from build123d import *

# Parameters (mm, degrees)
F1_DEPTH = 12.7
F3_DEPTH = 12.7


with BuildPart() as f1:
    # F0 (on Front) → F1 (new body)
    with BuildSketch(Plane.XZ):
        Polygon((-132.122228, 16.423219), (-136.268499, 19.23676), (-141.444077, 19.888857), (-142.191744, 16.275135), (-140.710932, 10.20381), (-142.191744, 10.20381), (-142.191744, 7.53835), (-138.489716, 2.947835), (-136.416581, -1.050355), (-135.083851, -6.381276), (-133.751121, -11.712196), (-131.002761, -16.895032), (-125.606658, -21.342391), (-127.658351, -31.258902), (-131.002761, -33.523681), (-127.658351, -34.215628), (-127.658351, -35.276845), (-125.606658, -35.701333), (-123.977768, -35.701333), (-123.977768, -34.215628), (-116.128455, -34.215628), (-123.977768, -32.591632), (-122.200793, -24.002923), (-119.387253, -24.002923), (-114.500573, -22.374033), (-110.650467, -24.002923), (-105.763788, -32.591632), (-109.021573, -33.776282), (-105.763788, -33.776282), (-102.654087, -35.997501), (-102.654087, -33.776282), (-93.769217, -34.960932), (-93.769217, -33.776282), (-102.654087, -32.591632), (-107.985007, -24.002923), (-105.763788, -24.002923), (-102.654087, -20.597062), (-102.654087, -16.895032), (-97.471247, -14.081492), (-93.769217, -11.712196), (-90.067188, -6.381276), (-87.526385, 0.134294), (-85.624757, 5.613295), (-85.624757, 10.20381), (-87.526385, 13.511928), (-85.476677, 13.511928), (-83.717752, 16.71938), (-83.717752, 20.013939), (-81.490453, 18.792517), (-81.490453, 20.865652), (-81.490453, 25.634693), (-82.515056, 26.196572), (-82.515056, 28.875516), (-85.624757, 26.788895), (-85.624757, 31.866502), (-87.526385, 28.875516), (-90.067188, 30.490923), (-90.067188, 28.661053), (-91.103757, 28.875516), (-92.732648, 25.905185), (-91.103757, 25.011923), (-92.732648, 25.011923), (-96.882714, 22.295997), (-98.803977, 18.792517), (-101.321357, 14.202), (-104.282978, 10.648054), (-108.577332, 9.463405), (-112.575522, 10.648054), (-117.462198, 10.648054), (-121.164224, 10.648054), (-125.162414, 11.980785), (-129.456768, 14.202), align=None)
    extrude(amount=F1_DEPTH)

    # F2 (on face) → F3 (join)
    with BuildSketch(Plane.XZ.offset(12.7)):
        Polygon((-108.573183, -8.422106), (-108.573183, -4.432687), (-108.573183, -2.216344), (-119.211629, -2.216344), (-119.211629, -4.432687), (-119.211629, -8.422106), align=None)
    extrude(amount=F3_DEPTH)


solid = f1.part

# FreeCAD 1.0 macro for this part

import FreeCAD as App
import Part
import Sketcher
from FreeCAD import Vector
Q = App.Units.Quantity


def add_polygon(sketch, points):
    """Adds a closed chain of lines whose ends are joined by coincident constraints."""
    first, n = sketch.GeometryCount, len(points)
    for a, b in zip(points, points[1:] + points[:1]):
        sketch.addGeometry(Part.LineSegment(App.Vector(*a, 0), App.Vector(*b, 0)), False)
    for i in range(n):
        sketch.addConstraint(Sketcher.Constraint("Coincident", first + i, 2, first + (i + 1) % n, 1))

doc = App.newDocument("Part")
body = doc.addObject("PartDesign::Body", "Body")

sketch1 = body.newObject("Sketcher::SketchObject", "Sketch")
sketch1.AttachmentSupport = (doc.getObject("XZ_Plane"), [""])
sketch1.MapMode = "FlatFace"
add_polygon(sketch1, [(-132.122228, 16.423219), (-136.268499, 19.23676), (-141.444077, 19.888857), (-142.191744, 16.275135), (-140.710932, 10.20381), (-142.191744, 10.20381), (-142.191744, 7.53835), (-138.489716, 2.947835), (-136.416581, -1.050355), (-135.083851, -6.381276), (-133.751121, -11.712196), (-131.002761, -16.895032), (-125.606658, -21.342391), (-127.658351, -31.258902), (-131.002761, -33.523681), (-127.658351, -34.215628), (-127.658351, -35.276845), (-125.606658, -35.701333), (-123.977768, -35.701333), (-123.977768, -34.215628), (-116.128455, -34.215628), (-123.977768, -32.591632), (-122.200793, -24.002923), (-119.387253, -24.002923), (-114.500573, -22.374033), (-110.650467, -24.002923), (-105.763788, -32.591632), (-109.021573, -33.776282), (-105.763788, -33.776282), (-102.654087, -35.997501), (-102.654087, -33.776282), (-93.769217, -34.960932), (-93.769217, -33.776282), (-102.654087, -32.591632), (-107.985007, -24.002923), (-105.763788, -24.002923), (-102.654087, -20.597062), (-102.654087, -16.895032), (-97.471247, -14.081492), (-93.769217, -11.712196), (-90.067188, -6.381276), (-87.526385, 0.134294), (-85.624757, 5.613295), (-85.624757, 10.20381), (-87.526385, 13.511928), (-85.476677, 13.511928), (-83.717752, 16.71938), (-83.717752, 20.013939), (-81.490453, 18.792517), (-81.490453, 25.634693), (-82.515056, 26.196572), (-82.515056, 28.875516), (-85.624757, 26.788895), (-85.624757, 31.866502), (-87.526385, 28.875516), (-90.067188, 30.490923), (-90.067188, 28.661053), (-91.103757, 28.875516), (-92.732648, 25.905185), (-91.103757, 25.011923), (-92.732648, 25.011923), (-96.882714, 22.295997), (-98.803977, 18.792517), (-101.321357, 14.202), (-104.282978, 10.648054), (-108.577332, 9.463405), (-112.575522, 10.648054), (-121.164224, 10.648054), (-125.162414, 11.980785), (-129.456768, 14.202)])
sketch1.addConstraint(Sketcher.Constraint("Horizontal", 4))
sketch1.addConstraint(Sketcher.Constraint("Vertical", 5))
sketch1.addConstraint(Sketcher.Constraint("Vertical", 15))
sketch1.addConstraint(Sketcher.Constraint("Horizontal", 17))
sketch1.addConstraint(Sketcher.Constraint("Vertical", 18))
sketch1.addConstraint(Sketcher.Constraint("Horizontal", 19))
sketch1.addConstraint(Sketcher.Constraint("Horizontal", 22))
sketch1.addConstraint(Sketcher.Constraint("Horizontal", 27))
sketch1.addConstraint(Sketcher.Constraint("Vertical", 29))
sketch1.addConstraint(Sketcher.Constraint("Vertical", 31))
sketch1.addConstraint(Sketcher.Constraint("Horizontal", 34))
sketch1.addConstraint(Sketcher.Constraint("Vertical", 36))
sketch1.addConstraint(Sketcher.Constraint("Vertical", 42))
sketch1.addConstraint(Sketcher.Constraint("Horizontal", 44))
sketch1.addConstraint(Sketcher.Constraint("Vertical", 46))
sketch1.addConstraint(Sketcher.Constraint("Vertical", 48))
sketch1.addConstraint(Sketcher.Constraint("Vertical", 50))
sketch1.addConstraint(Sketcher.Constraint("Vertical", 52))
sketch1.addConstraint(Sketcher.Constraint("Vertical", 55))
sketch1.addConstraint(Sketcher.Constraint("Horizontal", 59))
sketch1.addConstraint(Sketcher.Constraint("Horizontal", 66))
sketch1.addConstraint(Sketcher.Constraint("Parallel", 8, 9))
sketch1.addConstraint(Sketcher.Constraint("Parallel", 2, 12))
sketch1.addConstraint(Sketcher.Constraint("Perpendicular", 12, 14))
sketch1.addConstraint(Sketcher.Constraint("Parallel", 14, 16))
sketch1.addConstraint(Sketcher.Constraint("Parallel", 16, 20))
sketch1.addConstraint(Sketcher.Constraint("Perpendicular", 20, 21))
sketch1.addConstraint(Sketcher.Constraint("Parallel", 30, 32))
sketch1.addConstraint(Sketcher.Constraint("Perpendicular", 45, 47))
sketch1.addConstraint(Sketcher.Constraint("Parallel", 47, 49))
sketch1.addConstraint(Sketcher.Constraint("Perpendicular", 53, 54))
sketch1.addConstraint(Sketcher.Constraint("Perpendicular", 21, 56))
sketch1.addConstraint(Sketcher.Constraint("Perpendicular", 49, 57))
sketch1.addConstraint(Sketcher.Constraint("Perpendicular", 57, 58))
sketch1.addConstraint(Sketcher.Constraint("Perpendicular", 58, 61))
sketch1.addConstraint(Sketcher.Constraint("Parallel", 61, 62))
sketch1.addConstraint(Sketcher.Constraint("Perpendicular", 63, 69))
sketch1.addConstraint(Sketcher.Constraint("Horizontal", 14, 2, 18, 2))
sketch1.addConstraint(Sketcher.Constraint("Horizontal", 22, 2, 24, 2))
sketch1.addConstraint(Sketcher.Constraint("Horizontal", 20, 2, 25, 2))
sketch1.addConstraint(Sketcher.Constraint("Horizontal", 27, 2, 29, 2))
sketch1.addConstraint(Sketcher.Constraint("Horizontal", 29, 2, 31, 2))
sketch1.addConstraint(Sketcher.Constraint("Horizontal", 25, 2, 32, 2))
sketch1.addConstraint(Sketcher.Constraint("Horizontal", 24, 2, 33, 2))
sketch1.addConstraint(Sketcher.Constraint("Horizontal", 10, 2, 36, 2))
sketch1.addConstraint(Sketcher.Constraint("Horizontal", 9, 2, 38, 2))
sketch1.addConstraint(Sketcher.Constraint("Horizontal", 8, 2, 39, 2))
sketch1.addConstraint(Sketcher.Constraint("Horizontal", 4, 2, 42, 2))
sketch1.addConstraint(Sketcher.Constraint("Horizontal", 50, 2, 53, 2))
sketch1.addConstraint(Sketcher.Constraint("Horizontal", 53, 2, 56, 2))
sketch1.addConstraint(Sketcher.Constraint("Horizontal", 47, 2, 61, 2))
sketch1.addConstraint(Sketcher.Constraint("Horizontal", 63, 2, 65, 2))
sketch1.addConstraint(Sketcher.Constraint("Horizontal", 62, 2, 68, 2))
sketch1.addConstraint(Sketcher.Constraint("Vertical", 2, 2, 4, 2))
sketch1.addConstraint(Sketcher.Constraint("Vertical", 10, 2, 13, 2))
sketch1.addConstraint(Sketcher.Constraint("Vertical", 12, 2, 14, 2))
sketch1.addConstraint(Sketcher.Constraint("Vertical", 11, 2, 16, 2))
sketch1.addConstraint(Sketcher.Constraint("Vertical", 18, 2, 20, 2))
sketch1.addConstraint(Sketcher.Constraint("Vertical", 25, 2, 27, 2))
sketch1.addConstraint(Sketcher.Constraint("Vertical", 29, 2, 32, 2))
sketch1.addConstraint(Sketcher.Constraint("Vertical", 27, 2, 34, 2))
sketch1.addConstraint(Sketcher.Constraint("Vertical", 32, 2, 35, 2))
sketch1.addConstraint(Sketcher.Constraint("Vertical", 31, 2, 38, 2))
sketch1.addConstraint(Sketcher.Constraint("Vertical", 40, 2, 43, 2))
sketch1.addConstraint(Sketcher.Constraint("Vertical", 42, 2, 51, 2))
sketch1.addConstraint(Sketcher.Constraint("Vertical", 43, 2, 53, 2))
sketch1.addConstraint(Sketcher.Constraint("Vertical", 39, 2, 54, 2))
sketch1.addConstraint(Sketcher.Constraint("Vertical", 56, 2, 58, 2))
sketch1.addConstraint(Sketcher.Constraint("Vertical", 57, 2, 59, 2))
sketch1.addConstraint(Sketcher.Constraint("Equal", 17, 59))
sketch1.addConstraint(Sketcher.Constraint("Equal", 34, 29))
sketch1.addConstraint(Sketcher.Constraint("Equal", 8, 9))
sketch1.addConstraint(Sketcher.Constraint("Equal", 6, 37))
sketch1.addConstraint(Sketcher.Constraint("DistanceX", 66, 2, 66, 1, Q("8.588702 mm")))
sketch1.addConstraint(Sketcher.Constraint("DistanceX", 2, 2, -1, 1, Q("5.5981002 in")))
sketch1.addConstraint(Sketcher.Constraint("Distance", 30, Q("8.963499 mm")))
sketch1.addConstraint(Sketcher.Constraint("Distance", 61, Q("3.995701 mm")))
sketch1.addConstraint(Sketcher.Constraint("Distance", 63, Q("4.626201 mm")))
sketch1.addConstraint(Sketcher.Constraint("Distance", 65, Q("4.170002 mm")))
sketch1.addConstraint(Sketcher.Constraint("Distance", 68, Q("4.834798 mm")))
sketch1.addConstraint(Sketcher.Constraint("DistanceX", 4, 2, 4, 1, Q("1.480812 mm")))
sketch1.addConstraint(Sketcher.Constraint("DistanceX", 17, 1, 17, 2, Q("1.62889 mm")))
sketch1.addConstraint(Sketcher.Constraint("DistanceX", 22, 1, 22, 2, Q("2.81354 mm")))
sketch1.addConstraint(Sketcher.Constraint("DistanceX", 34, 1, 34, 2, Q("2.221219 mm")))
sketch1.addConstraint(Sketcher.Constraint("DistanceX", 44, 1, 44, 2, Q("2.049708 mm")))
sketch1.addConstraint(Sketcher.Constraint("DistanceY", 5, 2, 5, 1, Q("2.66546 mm")))
sketch1.addConstraint(Sketcher.Constraint("DistanceY", 31, 1, 31, 2, Q("1.18465 mm")))
sketch1.addConstraint(Sketcher.Constraint("DistanceY", 36, 1, 36, 2, Q("3.70203 mm")))
sketch1.addConstraint(Sketcher.Constraint("DistanceY", 46, 1, 46, 2, Q("3.294559 mm")))
sketch1.addConstraint(Sketcher.Constraint("DistanceY", 55, 2, 55, 1, Q("1.82987 mm")))
sketch1.addConstraint(Sketcher.Constraint("DistanceX", 0, 2, -1, 1, Q("136.268499 mm")))
sketch1.addConstraint(Sketcher.Constraint("DistanceY", 12, 2, -1, 1, Q("31.258902 mm")))
sketch1.addConstraint(Sketcher.Constraint("DistanceY", 28, 2, -1, 1, Q("35.997501 mm")))
sketch1.addConstraint(Sketcher.Constraint("DistanceY", -1, 1, 62, 2, Q("14.202 mm")))
sketch1.addConstraint(Sketcher.Constraint("Distance", 7, Q("4.503711 mm")))
sketch1.addConstraint(Sketcher.Constraint("Distance", 12, Q("10.126531 mm")))
sketch1.addConstraint(Sketcher.Constraint("Distance", 14, Q("3.415241 mm")))
sketch1.addConstraint(Sketcher.Constraint("Distance", 23, Q("5.151012 mm")))
sketch1.addConstraint(Sketcher.Constraint("Distance", 26, Q("3.466491 mm")))
sketch1.addConstraint(Sketcher.Constraint("Distance", 33, Q("10.108641 mm")))
sketch1.addConstraint(Sketcher.Constraint("Distance", 38, Q("4.395292 mm")))
sketch1.addConstraint(Sketcher.Constraint("Distance", 39, Q("6.490279 mm")))
sketch1.addConstraint(Sketcher.Constraint("Distance", 40, Q("6.993449 mm")))
sketch1.addConstraint(Sketcher.Constraint("Distance", 54, Q("3.01085 mm")))
sketch1.addConstraint(Sketcher.Constraint("Distance", 58, Q("1.857741 mm")))
sketch1.addConstraint(Sketcher.Constraint("Distance", 60, Q("4.959768 mm")))
sketch1.addConstraint(Sketcher.Constraint("Distance", 62, Q("5.235461 mm")))
sketch1.addConstraint(Sketcher.Constraint("Distance", 64, Q("4.454758 mm")))
sketch1.addConstraint(Sketcher.Constraint("DistanceX", 19, 1, 19, 2, Q("7.849313 mm")))
sketch1.addConstraint(Sketcher.Constraint("DistanceY", 15, 2, 15, 1, Q("1.061217 mm")))
sketch1.addConstraint(Sketcher.Constraint("DistanceY", 18, 1, 18, 2, Q("1.485705 mm")))
sketch1.addConstraint(Sketcher.Constraint("DistanceY", 42, 1, 42, 2, Q("4.590515 mm")))
sketch1.addConstraint(Sketcher.Constraint("DistanceY", 48, 1, 48, 2, Q("6.842176 mm")))
sketch1.addConstraint(Sketcher.Constraint("DistanceY", 50, 1, 50, 2, Q("2.678944 mm")))
sketch1.addConstraint(Sketcher.Constraint("DistanceY", 52, 1, 52, 2, Q("5.077607 mm")))
sketch1.addConstraint(Sketcher.Constraint("DistanceY", -1, 1, 0, 2, Q("19.23676 mm")))
sketch1.addConstraint(Sketcher.Constraint("DistanceY", -1, 1, 3, 2, Q("10.20381 mm")))
sketch1.addConstraint(Sketcher.Constraint("DistanceX", 7, 2, -1, 1, Q("136.416581 mm")))
sketch1.addConstraint(Sketcher.Constraint("DistanceX", 8, 2, -1, 1, Q("135.083851 mm")))
sketch1.addConstraint(Sketcher.Constraint("DistanceX", 10, 2, -1, 1, Q("131.002761 mm")))
sketch1.addConstraint(Sketcher.Constraint("DistanceX", 25, 2, -1, 1, Q("105.763788 mm")))
sketch1.addConstraint(Sketcher.Constraint("DistanceX", 39, 2, -1, 1, Q("90.067188 mm")))
sketch1.addConstraint(Sketcher.Constraint("DistanceY", -1, 1, 45, 2, Q("16.71938 mm")))
sketch1.addConstraint(Sketcher.Constraint("DistanceY", -1, 1, 49, 2, Q("26.196572 mm")))
sketch1.addConstraint(Sketcher.Constraint("DistanceX", 63, 2, -1, 1, Q("104.282978 mm")))
sketch1.addConstraint(Sketcher.Constraint("DistanceX", 64, 2, -1, 1, Q("108.577332 mm")))
sketch1.addConstraint(Sketcher.Constraint("DistanceX", 68, 2, -1, 1, Q("129.456768 mm")))
sketch1.addConstraint(Sketcher.Constraint("DistanceX", 69, 2, -1, 1, Q("132.122228 mm")))
sketch1.addConstraint(Sketcher.Constraint("DistanceY", -1, 1, 69, 2, Q("16.423219 mm")))
sketch1.addConstraint(Sketcher.Constraint("Distance", 1, Q("5.216497 mm")))
sketch1.addConstraint(Sketcher.Constraint("Distance", 2, Q("3.690256 mm")))
sketch1.addConstraint(Sketcher.Constraint("Distance", 6, Q("5.897274 mm")))
sketch1.addConstraint(Sketcher.Constraint("Distance", 8, Q("5.494988 mm")))
sketch1.addConstraint(Sketcher.Constraint("Distance", 10, Q("5.866453 mm")))
sketch1.addConstraint(Sketcher.Constraint("Distance", 11, Q("6.992634 mm")))
sketch1.addConstraint(Sketcher.Constraint("Distance", 24, Q("4.180502 mm")))
sketch1.addConstraint(Sketcher.Constraint("Distance", 25, Q("9.881576 mm")))
sketch1.addConstraint(Sketcher.Constraint("Distance", 41, Q("5.799624 mm")))
sketch1.addConstraint(Sketcher.Constraint("Distance", 43, Q("3.815735 mm")))
sketch1.addConstraint(Sketcher.Constraint("Distance", 67, Q("4.214463 mm")))
pad1 = body.newObject("PartDesign::Pad", "Pad")
pad1.Profile = sketch1
pad1.Length = Q("0.5 in")

sketch2 = body.newObject("Sketcher::SketchObject", "Sketch001")
sketch2.AttachmentSupport = (doc.getObject("XZ_Plane"), [""])
sketch2.MapMode = "FlatFace"
sketch2.AttachmentOffset = App.Placement(Vector(0, 0, 0.5 * 25.4), App.Rotation())
add_polygon(sketch2, [(-108.573183, -8.422106), (-108.573183, -2.216344), (-119.211629, -2.216344), (-119.211629, -8.422106)])
sketch2.addConstraint(Sketcher.Constraint("Vertical", 0))
sketch2.addConstraint(Sketcher.Constraint("Horizontal", 1))
sketch2.addConstraint(Sketcher.Constraint("Vertical", 2))
sketch2.addConstraint(Sketcher.Constraint("Horizontal", 3))
sketch2.addConstraint(Sketcher.Constraint("DistanceX", 1, 2, 1, 1, Q("10.638446 mm")))
sketch2.addConstraint(Sketcher.Constraint("DistanceY", 0, 1, 0, 2, Q("6.205762 mm")))
sketch2.addConstraint(Sketcher.Constraint("DistanceX", 1, 2, -1, 1, Q("119.211629 mm")))
sketch2.addConstraint(Sketcher.Constraint("DistanceY", 0, 2, -1, 1, Q("2.216344 mm")))
pad2 = body.newObject("PartDesign::Pad", "Pad001")
pad2.Profile = sketch2
pad2.Length = Q("0.5 in")

doc.recompute()
